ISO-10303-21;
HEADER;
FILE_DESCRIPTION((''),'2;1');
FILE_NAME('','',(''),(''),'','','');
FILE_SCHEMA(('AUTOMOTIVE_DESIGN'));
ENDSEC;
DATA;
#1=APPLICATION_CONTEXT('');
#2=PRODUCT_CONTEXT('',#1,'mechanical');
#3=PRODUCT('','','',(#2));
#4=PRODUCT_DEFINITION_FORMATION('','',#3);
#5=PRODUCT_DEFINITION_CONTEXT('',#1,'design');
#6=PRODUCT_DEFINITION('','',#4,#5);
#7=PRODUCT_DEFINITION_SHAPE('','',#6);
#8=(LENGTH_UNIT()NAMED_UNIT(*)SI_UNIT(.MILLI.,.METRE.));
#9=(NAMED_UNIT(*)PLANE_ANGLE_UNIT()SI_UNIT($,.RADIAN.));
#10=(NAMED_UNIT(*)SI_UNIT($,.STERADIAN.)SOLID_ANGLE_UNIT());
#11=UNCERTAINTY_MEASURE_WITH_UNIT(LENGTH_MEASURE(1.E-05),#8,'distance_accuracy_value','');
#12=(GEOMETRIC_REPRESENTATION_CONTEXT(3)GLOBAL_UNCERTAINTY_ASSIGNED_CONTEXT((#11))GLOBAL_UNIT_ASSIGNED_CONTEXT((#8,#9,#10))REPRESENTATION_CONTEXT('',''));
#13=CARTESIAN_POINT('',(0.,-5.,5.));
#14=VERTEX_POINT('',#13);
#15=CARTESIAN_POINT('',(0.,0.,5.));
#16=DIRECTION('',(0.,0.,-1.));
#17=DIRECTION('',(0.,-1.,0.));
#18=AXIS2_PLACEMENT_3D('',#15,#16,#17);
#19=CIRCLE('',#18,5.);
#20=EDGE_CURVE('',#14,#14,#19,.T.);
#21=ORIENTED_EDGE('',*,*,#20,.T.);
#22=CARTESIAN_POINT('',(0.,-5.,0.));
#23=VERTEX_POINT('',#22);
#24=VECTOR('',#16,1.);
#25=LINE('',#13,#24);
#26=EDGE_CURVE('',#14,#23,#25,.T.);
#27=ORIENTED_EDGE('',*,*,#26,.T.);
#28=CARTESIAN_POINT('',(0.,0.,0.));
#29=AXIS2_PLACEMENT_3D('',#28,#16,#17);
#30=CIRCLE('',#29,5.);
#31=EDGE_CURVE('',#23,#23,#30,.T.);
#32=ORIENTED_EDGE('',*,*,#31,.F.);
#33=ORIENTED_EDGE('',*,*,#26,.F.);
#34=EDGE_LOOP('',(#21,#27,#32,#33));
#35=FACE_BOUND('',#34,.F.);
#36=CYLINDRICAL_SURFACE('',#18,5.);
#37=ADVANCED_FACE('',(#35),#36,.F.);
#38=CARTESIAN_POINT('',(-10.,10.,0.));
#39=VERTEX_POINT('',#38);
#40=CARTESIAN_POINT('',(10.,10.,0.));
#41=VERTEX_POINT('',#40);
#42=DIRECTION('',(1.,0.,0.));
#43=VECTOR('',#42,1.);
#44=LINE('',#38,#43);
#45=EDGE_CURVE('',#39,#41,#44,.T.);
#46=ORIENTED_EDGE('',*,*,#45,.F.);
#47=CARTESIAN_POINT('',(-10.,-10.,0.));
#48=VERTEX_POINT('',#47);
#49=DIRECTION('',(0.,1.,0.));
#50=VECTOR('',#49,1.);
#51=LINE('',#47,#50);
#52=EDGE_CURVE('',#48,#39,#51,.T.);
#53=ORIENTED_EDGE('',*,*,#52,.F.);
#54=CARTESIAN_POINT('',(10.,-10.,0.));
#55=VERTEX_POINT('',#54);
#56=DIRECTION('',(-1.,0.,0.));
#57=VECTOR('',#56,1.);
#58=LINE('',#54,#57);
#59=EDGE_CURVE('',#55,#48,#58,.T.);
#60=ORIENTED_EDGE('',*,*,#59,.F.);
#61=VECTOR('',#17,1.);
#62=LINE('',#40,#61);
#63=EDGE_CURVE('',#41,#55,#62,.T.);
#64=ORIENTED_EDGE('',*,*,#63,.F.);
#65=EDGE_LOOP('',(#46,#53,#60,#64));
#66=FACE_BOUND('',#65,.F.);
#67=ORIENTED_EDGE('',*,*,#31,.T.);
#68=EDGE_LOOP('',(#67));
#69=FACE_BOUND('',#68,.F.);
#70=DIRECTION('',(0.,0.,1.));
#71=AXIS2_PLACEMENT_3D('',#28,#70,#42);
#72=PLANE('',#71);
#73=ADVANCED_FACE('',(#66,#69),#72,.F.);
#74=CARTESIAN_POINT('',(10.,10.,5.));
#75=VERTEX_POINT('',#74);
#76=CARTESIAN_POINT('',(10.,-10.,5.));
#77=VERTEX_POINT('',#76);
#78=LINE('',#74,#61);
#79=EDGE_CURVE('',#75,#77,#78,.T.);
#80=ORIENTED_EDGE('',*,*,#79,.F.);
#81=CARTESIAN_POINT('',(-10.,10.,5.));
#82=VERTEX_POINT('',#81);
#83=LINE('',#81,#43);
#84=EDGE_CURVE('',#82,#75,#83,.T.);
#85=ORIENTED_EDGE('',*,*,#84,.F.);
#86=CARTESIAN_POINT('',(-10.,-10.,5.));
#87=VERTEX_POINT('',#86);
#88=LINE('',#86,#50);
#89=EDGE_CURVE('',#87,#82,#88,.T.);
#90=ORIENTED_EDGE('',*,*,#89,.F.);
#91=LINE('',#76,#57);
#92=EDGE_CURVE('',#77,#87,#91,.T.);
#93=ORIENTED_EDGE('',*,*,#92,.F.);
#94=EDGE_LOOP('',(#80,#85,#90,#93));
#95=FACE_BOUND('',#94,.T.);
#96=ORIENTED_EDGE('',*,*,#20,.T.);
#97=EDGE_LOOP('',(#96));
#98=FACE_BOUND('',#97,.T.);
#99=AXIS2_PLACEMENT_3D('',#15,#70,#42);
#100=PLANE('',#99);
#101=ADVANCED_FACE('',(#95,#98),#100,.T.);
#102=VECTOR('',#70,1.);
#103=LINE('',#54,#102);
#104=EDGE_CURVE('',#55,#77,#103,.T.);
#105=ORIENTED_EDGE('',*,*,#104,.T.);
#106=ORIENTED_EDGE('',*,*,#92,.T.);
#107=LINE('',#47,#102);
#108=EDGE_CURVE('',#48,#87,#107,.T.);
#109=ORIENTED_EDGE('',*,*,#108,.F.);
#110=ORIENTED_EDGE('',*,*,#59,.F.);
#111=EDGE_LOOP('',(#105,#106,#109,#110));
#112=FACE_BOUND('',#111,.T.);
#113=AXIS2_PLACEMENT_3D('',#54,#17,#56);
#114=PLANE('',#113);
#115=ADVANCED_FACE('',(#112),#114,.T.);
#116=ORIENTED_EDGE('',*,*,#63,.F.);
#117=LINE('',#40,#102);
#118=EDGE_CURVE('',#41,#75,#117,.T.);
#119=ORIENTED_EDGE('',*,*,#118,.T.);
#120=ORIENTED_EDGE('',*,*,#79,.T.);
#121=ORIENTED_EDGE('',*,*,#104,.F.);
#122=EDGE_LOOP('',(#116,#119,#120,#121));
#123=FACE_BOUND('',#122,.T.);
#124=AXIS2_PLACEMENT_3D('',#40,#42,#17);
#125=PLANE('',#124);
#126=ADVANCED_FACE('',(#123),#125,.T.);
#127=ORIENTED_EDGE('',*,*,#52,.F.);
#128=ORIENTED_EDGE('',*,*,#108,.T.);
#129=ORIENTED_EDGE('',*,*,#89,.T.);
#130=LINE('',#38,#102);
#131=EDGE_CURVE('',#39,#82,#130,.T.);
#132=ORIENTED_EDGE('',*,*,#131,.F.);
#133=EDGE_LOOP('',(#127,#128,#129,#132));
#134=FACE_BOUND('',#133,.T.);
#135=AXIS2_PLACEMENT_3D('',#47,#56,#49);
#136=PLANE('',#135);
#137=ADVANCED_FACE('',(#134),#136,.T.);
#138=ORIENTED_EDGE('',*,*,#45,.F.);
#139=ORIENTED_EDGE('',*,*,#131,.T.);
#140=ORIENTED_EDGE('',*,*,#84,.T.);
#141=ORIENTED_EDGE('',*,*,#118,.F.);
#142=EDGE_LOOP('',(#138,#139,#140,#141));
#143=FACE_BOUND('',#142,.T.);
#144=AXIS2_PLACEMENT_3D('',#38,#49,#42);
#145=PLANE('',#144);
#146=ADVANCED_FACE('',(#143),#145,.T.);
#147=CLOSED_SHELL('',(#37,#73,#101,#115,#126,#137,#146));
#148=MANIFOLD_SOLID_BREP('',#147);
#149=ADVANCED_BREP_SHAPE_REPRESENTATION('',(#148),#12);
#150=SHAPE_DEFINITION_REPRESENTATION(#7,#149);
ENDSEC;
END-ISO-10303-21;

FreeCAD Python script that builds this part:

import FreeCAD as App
import Part
import Sketcher
Q = App.Units.Quantity


def add_polygon(sketch, points):
    """Adds a closed chain of lines whose ends are joined by coincident constraints."""
    first, n = sketch.GeometryCount, len(points)
    for a, b in zip(points, points[1:] + points[:1]):
        sketch.addGeometry(Part.LineSegment(App.Vector(*a, 0), App.Vector(*b, 0)), False)
    for i in range(n):
        sketch.addConstraint(Sketcher.Constraint("Coincident", first + i, 2, first + (i + 1) % n, 1))

doc = App.newDocument("Part")
body = doc.addObject("PartDesign::Body", "Body")

# Sketch on XY plane
sketch1 = body.newObject("Sketcher::SketchObject", "Sketch")
sketch1.AttachmentSupport = (doc.getObject("XY_Plane"), [""])
sketch1.MapMode = "FlatFace"
add_polygon(sketch1, [(10, 10), (-10, 10), (-10, -10), (10, -10)])  # lines 0-3
sketch1.addConstraint([
    Sketcher.Constraint("Horizontal", 0),
    Sketcher.Constraint("Vertical", 1),
    Sketcher.Constraint("Horizontal", 2),
    Sketcher.Constraint("Vertical", 3),
    Sketcher.Constraint("Symmetric", 0, 2, 2, 2, -1, 1),
    Sketcher.Constraint("Equal", 2, 1),
    Sketcher.Constraint("DistanceX", 0, 2, 0, 1, Q("20 mm")),
])
pad1 = body.newObject("PartDesign::Pad", "Pad")
pad1.Profile = sketch1
pad1.Length = 5

# Sketch on XY plane
sketch2 = body.newObject("Sketcher::SketchObject", "Sketch001")
sketch2.AttachmentSupport = (doc.getObject("XY_Plane"), [""])
sketch2.MapMode = "FlatFace"
sketch2.AttachmentOffset = App.Placement(App.Vector(0, 0, 5), App.Rotation())
sketch2.addGeometry(Part.Circle(App.Vector(0, 0, 0), App.Vector(0, 0, 1), 5), False)
sketch2.addConstraint([
    Sketcher.Constraint("Coincident", 0, 3, -1, 1),
    Sketcher.Constraint("Diameter", 0, Q("10 mm")),
])
doc.recompute()
hole = body.newObject("PartDesign::Hole", "Hole")
hole.Profile = sketch2
hole.ThreadType = "None"
hole.Diameter = 10
hole.DepthType = "ThroughAll"

doc.recompute()
